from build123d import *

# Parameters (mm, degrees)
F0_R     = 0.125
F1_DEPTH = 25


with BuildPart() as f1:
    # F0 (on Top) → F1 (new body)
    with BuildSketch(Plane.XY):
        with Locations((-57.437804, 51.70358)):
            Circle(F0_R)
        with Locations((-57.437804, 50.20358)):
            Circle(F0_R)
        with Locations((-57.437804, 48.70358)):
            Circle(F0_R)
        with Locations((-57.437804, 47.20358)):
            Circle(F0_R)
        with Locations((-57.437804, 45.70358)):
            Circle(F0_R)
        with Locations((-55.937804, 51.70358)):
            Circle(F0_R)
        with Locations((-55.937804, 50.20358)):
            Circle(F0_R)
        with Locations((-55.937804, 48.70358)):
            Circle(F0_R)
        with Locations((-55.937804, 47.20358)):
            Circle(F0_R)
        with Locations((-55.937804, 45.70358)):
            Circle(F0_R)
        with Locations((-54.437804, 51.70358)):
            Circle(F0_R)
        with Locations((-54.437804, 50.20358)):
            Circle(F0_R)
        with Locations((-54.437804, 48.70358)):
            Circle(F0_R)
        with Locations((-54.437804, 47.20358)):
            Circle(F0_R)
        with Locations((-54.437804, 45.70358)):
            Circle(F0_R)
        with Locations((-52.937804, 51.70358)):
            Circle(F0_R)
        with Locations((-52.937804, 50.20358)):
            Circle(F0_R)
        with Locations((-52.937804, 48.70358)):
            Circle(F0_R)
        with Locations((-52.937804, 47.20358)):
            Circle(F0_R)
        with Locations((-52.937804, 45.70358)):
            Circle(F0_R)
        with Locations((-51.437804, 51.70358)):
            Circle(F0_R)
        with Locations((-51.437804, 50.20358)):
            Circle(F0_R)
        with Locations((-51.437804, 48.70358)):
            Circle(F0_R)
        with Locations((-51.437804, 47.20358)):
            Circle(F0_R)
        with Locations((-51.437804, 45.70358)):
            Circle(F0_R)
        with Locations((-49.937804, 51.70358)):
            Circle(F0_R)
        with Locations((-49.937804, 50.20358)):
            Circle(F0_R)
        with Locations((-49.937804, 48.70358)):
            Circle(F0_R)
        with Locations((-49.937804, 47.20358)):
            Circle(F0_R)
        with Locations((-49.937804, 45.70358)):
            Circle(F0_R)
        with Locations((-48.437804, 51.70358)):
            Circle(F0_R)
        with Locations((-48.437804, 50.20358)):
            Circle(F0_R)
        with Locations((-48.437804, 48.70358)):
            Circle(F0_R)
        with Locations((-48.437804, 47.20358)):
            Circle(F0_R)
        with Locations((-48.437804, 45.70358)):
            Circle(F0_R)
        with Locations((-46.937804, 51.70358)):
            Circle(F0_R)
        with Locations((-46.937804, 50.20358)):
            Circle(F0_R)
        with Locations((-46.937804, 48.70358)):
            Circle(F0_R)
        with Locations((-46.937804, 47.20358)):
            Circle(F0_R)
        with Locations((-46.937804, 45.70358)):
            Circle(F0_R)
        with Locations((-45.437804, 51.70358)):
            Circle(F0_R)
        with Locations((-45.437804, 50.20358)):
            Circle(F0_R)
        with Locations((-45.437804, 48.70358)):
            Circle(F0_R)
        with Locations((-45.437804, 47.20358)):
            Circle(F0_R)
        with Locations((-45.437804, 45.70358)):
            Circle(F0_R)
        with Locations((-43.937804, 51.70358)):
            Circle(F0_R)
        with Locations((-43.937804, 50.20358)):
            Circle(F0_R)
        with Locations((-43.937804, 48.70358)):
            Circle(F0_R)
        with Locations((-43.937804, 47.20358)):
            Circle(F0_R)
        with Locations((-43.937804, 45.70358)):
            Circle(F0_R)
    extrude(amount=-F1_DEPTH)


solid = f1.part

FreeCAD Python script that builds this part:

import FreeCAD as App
import Part
import Sketcher
from FreeCAD import Vector

doc = App.newDocument("Part")
body = doc.addObject("PartDesign::Body", "Body")
body.AllowCompound = True

# Sketch on XY plane
sketch1 = body.newObject("Sketcher::SketchObject", "Sketch")
sketch1.AttachmentSupport = (doc.getObject("XY_Plane"), [""])
sketch1.MapMode = "FlatFace"
sketch1.addGeometry([
    Part.Circle(Vector(-57.44, 51.7, 0), Vector(0, 0, 1), 0.12),  # 0
    Part.Circle(Vector(-57.44, 50.2, 0), Vector(0, 0, 1), 0.12),  # 1
    Part.Circle(Vector(-57.44, 48.7, 0), Vector(0, 0, 1), 0.12),  # 2
    Part.Circle(Vector(-57.44, 47.2, 0), Vector(0, 0, 1), 0.12),  # 3
    Part.Circle(Vector(-57.44, 45.7, 0), Vector(0, 0, 1), 0.12),  # 4
    Part.Circle(Vector(-55.94, 51.7, 0), Vector(0, 0, 1), 0.12),  # 5
    Part.Circle(Vector(-55.94, 50.2, 0), Vector(0, 0, 1), 0.12),  # 6
    Part.Circle(Vector(-55.94, 48.7, 0), Vector(0, 0, 1), 0.12),  # 7
    Part.Circle(Vector(-55.94, 47.2, 0), Vector(0, 0, 1), 0.12),  # 8
    Part.Circle(Vector(-55.94, 45.7, 0), Vector(0, 0, 1), 0.12),  # 9
    Part.Circle(Vector(-54.44, 51.7, 0), Vector(0, 0, 1), 0.12),  # 10
    Part.Circle(Vector(-54.44, 50.2, 0), Vector(0, 0, 1), 0.12),  # 11
    Part.Circle(Vector(-54.44, 48.7, 0), Vector(0, 0, 1), 0.12),  # 12
    Part.Circle(Vector(-54.44, 47.2, 0), Vector(0, 0, 1), 0.12),  # 13
    Part.Circle(Vector(-54.44, 45.7, 0), Vector(0, 0, 1), 0.12),  # 14
    Part.Circle(Vector(-52.94, 51.7, 0), Vector(0, 0, 1), 0.12),  # 15
    Part.Circle(Vector(-52.94, 50.2, 0), Vector(0, 0, 1), 0.12),  # 16
    Part.Circle(Vector(-52.94, 48.7, 0), Vector(0, 0, 1), 0.12),  # 17
    Part.Circle(Vector(-52.94, 47.2, 0), Vector(0, 0, 1), 0.12),  # 18
    Part.Circle(Vector(-52.94, 45.7, 0), Vector(0, 0, 1), 0.12),  # 19
    Part.Circle(Vector(-51.44, 51.7, 0), Vector(0, 0, 1), 0.12),  # 20
    Part.Circle(Vector(-51.44, 50.2, 0), Vector(0, 0, 1), 0.12),  # 21
    Part.Circle(Vector(-51.44, 48.7, 0), Vector(0, 0, 1), 0.12),  # 22
    Part.Circle(Vector(-51.44, 47.2, 0), Vector(0, 0, 1), 0.12),  # 23
    Part.Circle(Vector(-51.44, 45.7, 0), Vector(0, 0, 1), 0.12),  # 24
    Part.Circle(Vector(-49.94, 51.7, 0), Vector(0, 0, 1), 0.12),  # 25
    Part.Circle(Vector(-49.94, 50.2, 0), Vector(0, 0, 1), 0.12),  # 26
    Part.Circle(Vector(-49.94, 48.7, 0), Vector(0, 0, 1), 0.12),  # 27
    Part.Circle(Vector(-49.94, 47.2, 0), Vector(0, 0, 1), 0.12),  # 28
    Part.Circle(Vector(-49.94, 45.7, 0), Vector(0, 0, 1), 0.12),  # 29
    Part.Circle(Vector(-48.44, 51.7, 0), Vector(0, 0, 1), 0.12),  # 30
    Part.Circle(Vector(-48.44, 50.2, 0), Vector(0, 0, 1), 0.12),  # 31
    Part.Circle(Vector(-48.44, 48.7, 0), Vector(0, 0, 1), 0.12),  # 32
    Part.Circle(Vector(-48.44, 47.2, 0), Vector(0, 0, 1), 0.12),  # 33
    Part.Circle(Vector(-48.44, 45.7, 0), Vector(0, 0, 1), 0.12),  # 34
    Part.Circle(Vector(-46.94, 51.7, 0), Vector(0, 0, 1), 0.12),  # 35
    Part.Circle(Vector(-46.94, 50.2, 0), Vector(0, 0, 1), 0.12),  # 36
    Part.Circle(Vector(-46.94, 48.7, 0), Vector(0, 0, 1), 0.12),  # 37
    Part.Circle(Vector(-46.94, 47.2, 0), Vector(0, 0, 1), 0.12),  # 38
    Part.Circle(Vector(-46.94, 45.7, 0), Vector(0, 0, 1), 0.12),  # 39
    Part.Circle(Vector(-45.44, 51.7, 0), Vector(0, 0, 1), 0.12),  # 40
    Part.Circle(Vector(-45.44, 50.2, 0), Vector(0, 0, 1), 0.12),  # 41
    Part.Circle(Vector(-45.44, 48.7, 0), Vector(0, 0, 1), 0.12),  # 42
    Part.Circle(Vector(-45.44, 47.2, 0), Vector(0, 0, 1), 0.12),  # 43
    Part.Circle(Vector(-45.44, 45.7, 0), Vector(0, 0, 1), 0.12),  # 44
    Part.Circle(Vector(-43.94, 51.7, 0), Vector(0, 0, 1), 0.12),  # 45
    Part.Circle(Vector(-43.94, 50.2, 0), Vector(0, 0, 1), 0.12),  # 46
    Part.Circle(Vector(-43.94, 48.7, 0), Vector(0, 0, 1), 0.12),  # 47
    Part.Circle(Vector(-43.94, 47.2, 0), Vector(0, 0, 1), 0.12),  # 48
    Part.Circle(Vector(-43.94, 45.7, 0), Vector(0, 0, 1), 0.12),  # 49
], False)
sketch1.addConstraint([
    Sketcher.Constraint("Equal", 0, 1),
    Sketcher.Constraint("Equal", 1, 2),
    Sketcher.Constraint("Equal", 2, 3),
    Sketcher.Constraint("Equal", 3, 4),
    Sketcher.Constraint("Equal", 4, 5),
    Sketcher.Constraint("Equal", 5, 6),
    Sketcher.Constraint("Equal", 6, 7),
    Sketcher.Constraint("Equal", 7, 8),
    Sketcher.Constraint("Equal", 8, 9),
    Sketcher.Constraint("Equal", 9, 10),
    Sketcher.Constraint("Equal", 10, 11),
    Sketcher.Constraint("Equal", 11, 12),
    Sketcher.Constraint("Equal", 12, 13),
    Sketcher.Constraint("Equal", 13, 14),
    Sketcher.Constraint("Equal", 14, 15),
    Sketcher.Constraint("Equal", 15, 16),
    Sketcher.Constraint("Equal", 16, 17),
    Sketcher.Constraint("Equal", 17, 18),
    Sketcher.Constraint("Equal", 18, 19),
    Sketcher.Constraint("Equal", 19, 20),
    Sketcher.Constraint("Equal", 20, 21),
    Sketcher.Constraint("Equal", 21, 22),
    Sketcher.Constraint("Equal", 22, 23),
    Sketcher.Constraint("Equal", 23, 24),
    Sketcher.Constraint("Equal", 24, 25),
    Sketcher.Constraint("Equal", 25, 26),
    Sketcher.Constraint("Equal", 26, 27),
    Sketcher.Constraint("Equal", 27, 28),
    Sketcher.Constraint("Equal", 28, 29),
    Sketcher.Constraint("Equal", 29, 30),
    Sketcher.Constraint("Equal", 30, 31),
    Sketcher.Constraint("Equal", 31, 32),
    Sketcher.Constraint("Equal", 32, 33),
    Sketcher.Constraint("Equal", 33, 34),
    Sketcher.Constraint("Equal", 34, 35),
    Sketcher.Constraint("Equal", 35, 36),
    Sketcher.Constraint("Equal", 36, 37),
    Sketcher.Constraint("Equal", 37, 38),
    Sketcher.Constraint("Equal", 38, 39),
    Sketcher.Constraint("Equal", 39, 40),
    Sketcher.Constraint("Equal", 40, 41),
    Sketcher.Constraint("Equal", 41, 42),
    Sketcher.Constraint("Equal", 42, 43),
    Sketcher.Constraint("Equal", 43, 44),
    Sketcher.Constraint("Equal", 44, 45),
    Sketcher.Constraint("Equal", 45, 46),
    Sketcher.Constraint("Equal", 46, 47),
    Sketcher.Constraint("Equal", 47, 48),
    Sketcher.Constraint("Equal", 48, 49),
    Sketcher.Constraint("Horizontal", 0, 3, 5, 3),
    Sketcher.Constraint("Horizontal", 1, 3, 6, 3),
    Sketcher.Constraint("Horizontal", 2, 3, 7, 3),
    Sketcher.Constraint("Horizontal", 3, 3, 8, 3),
    Sketcher.Constraint("Horizontal", 4, 3, 9, 3),
    Sketcher.Constraint("Horizontal", 5, 3, 10, 3),
    Sketcher.Constraint("Horizontal", 6, 3, 11, 3),
    Sketcher.Constraint("Horizontal", 7, 3, 12, 3),
    Sketcher.Constraint("Horizontal", 8, 3, 13, 3),
    Sketcher.Constraint("Horizontal", 9, 3, 14, 3),
    Sketcher.Constraint("Horizontal", 10, 3, 15, 3),
    Sketcher.Constraint("Horizontal", 11, 3, 16, 3),
    Sketcher.Constraint("Horizontal", 12, 3, 17, 3),
    Sketcher.Constraint("Horizontal", 13, 3, 18, 3),
    Sketcher.Constraint("Horizontal", 14, 3, 19, 3),
    Sketcher.Constraint("Horizontal", 15, 3, 20, 3),
    Sketcher.Constraint("Horizontal", 16, 3, 21, 3),
    Sketcher.Constraint("Horizontal", 17, 3, 22, 3),
    Sketcher.Constraint("Horizontal", 18, 3, 23, 3),
    Sketcher.Constraint("Horizontal", 19, 3, 24, 3),
    Sketcher.Constraint("Horizontal", 20, 3, 25, 3),
    Sketcher.Constraint("Horizontal", 21, 3, 26, 3),
    Sketcher.Constraint("Horizontal", 22, 3, 27, 3),
    Sketcher.Constraint("Horizontal", 23, 3, 28, 3),
    Sketcher.Constraint("Horizontal", 24, 3, 29, 3),
    Sketcher.Constraint("Horizontal", 25, 3, 30, 3),
    Sketcher.Constraint("Horizontal", 26, 3, 31, 3),
    Sketcher.Constraint("Horizontal", 27, 3, 32, 3),
    Sketcher.Constraint("Horizontal", 28, 3, 33, 3),
    Sketcher.Constraint("Horizontal", 29, 3, 34, 3),
    Sketcher.Constraint("Horizontal", 30, 3, 35, 3),
    Sketcher.Constraint("Horizontal", 31, 3, 36, 3),
    Sketcher.Constraint("Horizontal", 32, 3, 37, 3),
    Sketcher.Constraint("Horizontal", 33, 3, 38, 3),
    Sketcher.Constraint("Horizontal", 34, 3, 39, 3),
    Sketcher.Constraint("Horizontal", 35, 3, 40, 3),
    Sketcher.Constraint("Horizontal", 36, 3, 41, 3),
    Sketcher.Constraint("Horizontal", 37, 3, 42, 3),
    Sketcher.Constraint("Horizontal", 38, 3, 43, 3),
    Sketcher.Constraint("Horizontal", 39, 3, 44, 3),
    Sketcher.Constraint("Horizontal", 40, 3, 45, 3),
    Sketcher.Constraint("Horizontal", 41, 3, 46, 3),
    Sketcher.Constraint("Horizontal", 42, 3, 47, 3),
    Sketcher.Constraint("Horizontal", 43, 3, 48, 3),
    Sketcher.Constraint("Horizontal", 44, 3, 49, 3),
    Sketcher.Constraint("Vertical", 0, 3, 1, 3),
    Sketcher.Constraint("Vertical", 1, 3, 2, 3),
    Sketcher.Constraint("Vertical", 2, 3, 3, 3),
    Sketcher.Constraint("Vertical", 3, 3, 4, 3),
    Sketcher.Constraint("Vertical", 5, 3, 6, 3),
    Sketcher.Constraint("Vertical", 6, 3, 7, 3),
    Sketcher.Constraint("Vertical", 7, 3, 8, 3),
    Sketcher.Constraint("Vertical", 8, 3, 9, 3),
    Sketcher.Constraint("Vertical", 10, 3, 11, 3),
    Sketcher.Constraint("Vertical", 11, 3, 12, 3),
    Sketcher.Constraint("Vertical", 12, 3, 13, 3),
    Sketcher.Constraint("Vertical", 13, 3, 14, 3),
    Sketcher.Constraint("Vertical", 15, 3, 16, 3),
    Sketcher.Constraint("Vertical", 16, 3, 17, 3),
    Sketcher.Constraint("Vertical", 17, 3, 18, 3),
    Sketcher.Constraint("Vertical", 18, 3, 19, 3),
    Sketcher.Constraint("Vertical", 20, 3, 21, 3),
    Sketcher.Constraint("Vertical", 21, 3, 22, 3),
    Sketcher.Constraint("Vertical", 22, 3, 23, 3),
    Sketcher.Constraint("Vertical", 23, 3, 24, 3),
    Sketcher.Constraint("Vertical", 25, 3, 26, 3),
    Sketcher.Constraint("Vertical", 26, 3, 27, 3),
    Sketcher.Constraint("Vertical", 27, 3, 28, 3),
    Sketcher.Constraint("Vertical", 28, 3, 29, 3),
    Sketcher.Constraint("Vertical", 30, 3, 31, 3),
    Sketcher.Constraint("Vertical", 31, 3, 32, 3),
    Sketcher.Constraint("Vertical", 32, 3, 33, 3),
    Sketcher.Constraint("Vertical", 33, 3, 34, 3),
    Sketcher.Constraint("Vertical", 35, 3, 36, 3),
    Sketcher.Constraint("Vertical", 36, 3, 37, 3),
    Sketcher.Constraint("Vertical", 37, 3, 38, 3),
    Sketcher.Constraint("Vertical", 38, 3, 39, 3),
    Sketcher.Constraint("Vertical", 40, 3, 41, 3),
    Sketcher.Constraint("Vertical", 41, 3, 42, 3),
    Sketcher.Constraint("Vertical", 42, 3, 43, 3),
    Sketcher.Constraint("Vertical", 43, 3, 44, 3),
    Sketcher.Constraint("Vertical", 45, 3, 46, 3),
    Sketcher.Constraint("Vertical", 46, 3, 47, 3),
    Sketcher.Constraint("Vertical", 47, 3, 48, 3),
    Sketcher.Constraint("Vertical", 48, 3, 49, 3),
    Sketcher.Constraint("Diameter", 0, 0.25),
    Sketcher.Constraint("DistanceY", 2, 3, 0, 3, 3.0),
    Sketcher.Constraint("DistanceY", 3, 3, 1, 3, 3.0),
    Sketcher.Constraint("DistanceY", 4, 3, 2, 3, 3.0),
    Sketcher.Constraint("DistanceX", 0, 3, 10, 3, 3.0),
    Sketcher.Constraint("DistanceX", 5, 3, 15, 3, 3.0),
    Sketcher.Constraint("DistanceX", 10, 3, 20, 3, 3.0),
    Sketcher.Constraint("DistanceX", 15, 3, 25, 3, 3.0),
    Sketcher.Constraint("DistanceX", 20, 3, 30, 3, 3.0),
    Sketcher.Constraint("DistanceX", 25, 3, 35, 3, 3.0),
    Sketcher.Constraint("DistanceX", 30, 3, 40, 3, 3.0),
    Sketcher.Constraint("DistanceX", 35, 3, 45, 3, 3.0),
    Sketcher.Constraint("DistanceY", 1, 3, 0, 3, 1.5),
    Sketcher.Constraint("DistanceX", 0, 3, 5, 3, 1.5),
    Sketcher.Constraint("DistanceY", -1, 1, 0, 3, 51.70358),
    Sketcher.Constraint("DistanceX", 0, 3, -1, 1, 57.437804),
])
pad1 = body.newObject("PartDesign::Pad", "Pad")
pad1.Profile = sketch1
pad1.Length = 25
pad1.Reversed = True

doc.recompute()
